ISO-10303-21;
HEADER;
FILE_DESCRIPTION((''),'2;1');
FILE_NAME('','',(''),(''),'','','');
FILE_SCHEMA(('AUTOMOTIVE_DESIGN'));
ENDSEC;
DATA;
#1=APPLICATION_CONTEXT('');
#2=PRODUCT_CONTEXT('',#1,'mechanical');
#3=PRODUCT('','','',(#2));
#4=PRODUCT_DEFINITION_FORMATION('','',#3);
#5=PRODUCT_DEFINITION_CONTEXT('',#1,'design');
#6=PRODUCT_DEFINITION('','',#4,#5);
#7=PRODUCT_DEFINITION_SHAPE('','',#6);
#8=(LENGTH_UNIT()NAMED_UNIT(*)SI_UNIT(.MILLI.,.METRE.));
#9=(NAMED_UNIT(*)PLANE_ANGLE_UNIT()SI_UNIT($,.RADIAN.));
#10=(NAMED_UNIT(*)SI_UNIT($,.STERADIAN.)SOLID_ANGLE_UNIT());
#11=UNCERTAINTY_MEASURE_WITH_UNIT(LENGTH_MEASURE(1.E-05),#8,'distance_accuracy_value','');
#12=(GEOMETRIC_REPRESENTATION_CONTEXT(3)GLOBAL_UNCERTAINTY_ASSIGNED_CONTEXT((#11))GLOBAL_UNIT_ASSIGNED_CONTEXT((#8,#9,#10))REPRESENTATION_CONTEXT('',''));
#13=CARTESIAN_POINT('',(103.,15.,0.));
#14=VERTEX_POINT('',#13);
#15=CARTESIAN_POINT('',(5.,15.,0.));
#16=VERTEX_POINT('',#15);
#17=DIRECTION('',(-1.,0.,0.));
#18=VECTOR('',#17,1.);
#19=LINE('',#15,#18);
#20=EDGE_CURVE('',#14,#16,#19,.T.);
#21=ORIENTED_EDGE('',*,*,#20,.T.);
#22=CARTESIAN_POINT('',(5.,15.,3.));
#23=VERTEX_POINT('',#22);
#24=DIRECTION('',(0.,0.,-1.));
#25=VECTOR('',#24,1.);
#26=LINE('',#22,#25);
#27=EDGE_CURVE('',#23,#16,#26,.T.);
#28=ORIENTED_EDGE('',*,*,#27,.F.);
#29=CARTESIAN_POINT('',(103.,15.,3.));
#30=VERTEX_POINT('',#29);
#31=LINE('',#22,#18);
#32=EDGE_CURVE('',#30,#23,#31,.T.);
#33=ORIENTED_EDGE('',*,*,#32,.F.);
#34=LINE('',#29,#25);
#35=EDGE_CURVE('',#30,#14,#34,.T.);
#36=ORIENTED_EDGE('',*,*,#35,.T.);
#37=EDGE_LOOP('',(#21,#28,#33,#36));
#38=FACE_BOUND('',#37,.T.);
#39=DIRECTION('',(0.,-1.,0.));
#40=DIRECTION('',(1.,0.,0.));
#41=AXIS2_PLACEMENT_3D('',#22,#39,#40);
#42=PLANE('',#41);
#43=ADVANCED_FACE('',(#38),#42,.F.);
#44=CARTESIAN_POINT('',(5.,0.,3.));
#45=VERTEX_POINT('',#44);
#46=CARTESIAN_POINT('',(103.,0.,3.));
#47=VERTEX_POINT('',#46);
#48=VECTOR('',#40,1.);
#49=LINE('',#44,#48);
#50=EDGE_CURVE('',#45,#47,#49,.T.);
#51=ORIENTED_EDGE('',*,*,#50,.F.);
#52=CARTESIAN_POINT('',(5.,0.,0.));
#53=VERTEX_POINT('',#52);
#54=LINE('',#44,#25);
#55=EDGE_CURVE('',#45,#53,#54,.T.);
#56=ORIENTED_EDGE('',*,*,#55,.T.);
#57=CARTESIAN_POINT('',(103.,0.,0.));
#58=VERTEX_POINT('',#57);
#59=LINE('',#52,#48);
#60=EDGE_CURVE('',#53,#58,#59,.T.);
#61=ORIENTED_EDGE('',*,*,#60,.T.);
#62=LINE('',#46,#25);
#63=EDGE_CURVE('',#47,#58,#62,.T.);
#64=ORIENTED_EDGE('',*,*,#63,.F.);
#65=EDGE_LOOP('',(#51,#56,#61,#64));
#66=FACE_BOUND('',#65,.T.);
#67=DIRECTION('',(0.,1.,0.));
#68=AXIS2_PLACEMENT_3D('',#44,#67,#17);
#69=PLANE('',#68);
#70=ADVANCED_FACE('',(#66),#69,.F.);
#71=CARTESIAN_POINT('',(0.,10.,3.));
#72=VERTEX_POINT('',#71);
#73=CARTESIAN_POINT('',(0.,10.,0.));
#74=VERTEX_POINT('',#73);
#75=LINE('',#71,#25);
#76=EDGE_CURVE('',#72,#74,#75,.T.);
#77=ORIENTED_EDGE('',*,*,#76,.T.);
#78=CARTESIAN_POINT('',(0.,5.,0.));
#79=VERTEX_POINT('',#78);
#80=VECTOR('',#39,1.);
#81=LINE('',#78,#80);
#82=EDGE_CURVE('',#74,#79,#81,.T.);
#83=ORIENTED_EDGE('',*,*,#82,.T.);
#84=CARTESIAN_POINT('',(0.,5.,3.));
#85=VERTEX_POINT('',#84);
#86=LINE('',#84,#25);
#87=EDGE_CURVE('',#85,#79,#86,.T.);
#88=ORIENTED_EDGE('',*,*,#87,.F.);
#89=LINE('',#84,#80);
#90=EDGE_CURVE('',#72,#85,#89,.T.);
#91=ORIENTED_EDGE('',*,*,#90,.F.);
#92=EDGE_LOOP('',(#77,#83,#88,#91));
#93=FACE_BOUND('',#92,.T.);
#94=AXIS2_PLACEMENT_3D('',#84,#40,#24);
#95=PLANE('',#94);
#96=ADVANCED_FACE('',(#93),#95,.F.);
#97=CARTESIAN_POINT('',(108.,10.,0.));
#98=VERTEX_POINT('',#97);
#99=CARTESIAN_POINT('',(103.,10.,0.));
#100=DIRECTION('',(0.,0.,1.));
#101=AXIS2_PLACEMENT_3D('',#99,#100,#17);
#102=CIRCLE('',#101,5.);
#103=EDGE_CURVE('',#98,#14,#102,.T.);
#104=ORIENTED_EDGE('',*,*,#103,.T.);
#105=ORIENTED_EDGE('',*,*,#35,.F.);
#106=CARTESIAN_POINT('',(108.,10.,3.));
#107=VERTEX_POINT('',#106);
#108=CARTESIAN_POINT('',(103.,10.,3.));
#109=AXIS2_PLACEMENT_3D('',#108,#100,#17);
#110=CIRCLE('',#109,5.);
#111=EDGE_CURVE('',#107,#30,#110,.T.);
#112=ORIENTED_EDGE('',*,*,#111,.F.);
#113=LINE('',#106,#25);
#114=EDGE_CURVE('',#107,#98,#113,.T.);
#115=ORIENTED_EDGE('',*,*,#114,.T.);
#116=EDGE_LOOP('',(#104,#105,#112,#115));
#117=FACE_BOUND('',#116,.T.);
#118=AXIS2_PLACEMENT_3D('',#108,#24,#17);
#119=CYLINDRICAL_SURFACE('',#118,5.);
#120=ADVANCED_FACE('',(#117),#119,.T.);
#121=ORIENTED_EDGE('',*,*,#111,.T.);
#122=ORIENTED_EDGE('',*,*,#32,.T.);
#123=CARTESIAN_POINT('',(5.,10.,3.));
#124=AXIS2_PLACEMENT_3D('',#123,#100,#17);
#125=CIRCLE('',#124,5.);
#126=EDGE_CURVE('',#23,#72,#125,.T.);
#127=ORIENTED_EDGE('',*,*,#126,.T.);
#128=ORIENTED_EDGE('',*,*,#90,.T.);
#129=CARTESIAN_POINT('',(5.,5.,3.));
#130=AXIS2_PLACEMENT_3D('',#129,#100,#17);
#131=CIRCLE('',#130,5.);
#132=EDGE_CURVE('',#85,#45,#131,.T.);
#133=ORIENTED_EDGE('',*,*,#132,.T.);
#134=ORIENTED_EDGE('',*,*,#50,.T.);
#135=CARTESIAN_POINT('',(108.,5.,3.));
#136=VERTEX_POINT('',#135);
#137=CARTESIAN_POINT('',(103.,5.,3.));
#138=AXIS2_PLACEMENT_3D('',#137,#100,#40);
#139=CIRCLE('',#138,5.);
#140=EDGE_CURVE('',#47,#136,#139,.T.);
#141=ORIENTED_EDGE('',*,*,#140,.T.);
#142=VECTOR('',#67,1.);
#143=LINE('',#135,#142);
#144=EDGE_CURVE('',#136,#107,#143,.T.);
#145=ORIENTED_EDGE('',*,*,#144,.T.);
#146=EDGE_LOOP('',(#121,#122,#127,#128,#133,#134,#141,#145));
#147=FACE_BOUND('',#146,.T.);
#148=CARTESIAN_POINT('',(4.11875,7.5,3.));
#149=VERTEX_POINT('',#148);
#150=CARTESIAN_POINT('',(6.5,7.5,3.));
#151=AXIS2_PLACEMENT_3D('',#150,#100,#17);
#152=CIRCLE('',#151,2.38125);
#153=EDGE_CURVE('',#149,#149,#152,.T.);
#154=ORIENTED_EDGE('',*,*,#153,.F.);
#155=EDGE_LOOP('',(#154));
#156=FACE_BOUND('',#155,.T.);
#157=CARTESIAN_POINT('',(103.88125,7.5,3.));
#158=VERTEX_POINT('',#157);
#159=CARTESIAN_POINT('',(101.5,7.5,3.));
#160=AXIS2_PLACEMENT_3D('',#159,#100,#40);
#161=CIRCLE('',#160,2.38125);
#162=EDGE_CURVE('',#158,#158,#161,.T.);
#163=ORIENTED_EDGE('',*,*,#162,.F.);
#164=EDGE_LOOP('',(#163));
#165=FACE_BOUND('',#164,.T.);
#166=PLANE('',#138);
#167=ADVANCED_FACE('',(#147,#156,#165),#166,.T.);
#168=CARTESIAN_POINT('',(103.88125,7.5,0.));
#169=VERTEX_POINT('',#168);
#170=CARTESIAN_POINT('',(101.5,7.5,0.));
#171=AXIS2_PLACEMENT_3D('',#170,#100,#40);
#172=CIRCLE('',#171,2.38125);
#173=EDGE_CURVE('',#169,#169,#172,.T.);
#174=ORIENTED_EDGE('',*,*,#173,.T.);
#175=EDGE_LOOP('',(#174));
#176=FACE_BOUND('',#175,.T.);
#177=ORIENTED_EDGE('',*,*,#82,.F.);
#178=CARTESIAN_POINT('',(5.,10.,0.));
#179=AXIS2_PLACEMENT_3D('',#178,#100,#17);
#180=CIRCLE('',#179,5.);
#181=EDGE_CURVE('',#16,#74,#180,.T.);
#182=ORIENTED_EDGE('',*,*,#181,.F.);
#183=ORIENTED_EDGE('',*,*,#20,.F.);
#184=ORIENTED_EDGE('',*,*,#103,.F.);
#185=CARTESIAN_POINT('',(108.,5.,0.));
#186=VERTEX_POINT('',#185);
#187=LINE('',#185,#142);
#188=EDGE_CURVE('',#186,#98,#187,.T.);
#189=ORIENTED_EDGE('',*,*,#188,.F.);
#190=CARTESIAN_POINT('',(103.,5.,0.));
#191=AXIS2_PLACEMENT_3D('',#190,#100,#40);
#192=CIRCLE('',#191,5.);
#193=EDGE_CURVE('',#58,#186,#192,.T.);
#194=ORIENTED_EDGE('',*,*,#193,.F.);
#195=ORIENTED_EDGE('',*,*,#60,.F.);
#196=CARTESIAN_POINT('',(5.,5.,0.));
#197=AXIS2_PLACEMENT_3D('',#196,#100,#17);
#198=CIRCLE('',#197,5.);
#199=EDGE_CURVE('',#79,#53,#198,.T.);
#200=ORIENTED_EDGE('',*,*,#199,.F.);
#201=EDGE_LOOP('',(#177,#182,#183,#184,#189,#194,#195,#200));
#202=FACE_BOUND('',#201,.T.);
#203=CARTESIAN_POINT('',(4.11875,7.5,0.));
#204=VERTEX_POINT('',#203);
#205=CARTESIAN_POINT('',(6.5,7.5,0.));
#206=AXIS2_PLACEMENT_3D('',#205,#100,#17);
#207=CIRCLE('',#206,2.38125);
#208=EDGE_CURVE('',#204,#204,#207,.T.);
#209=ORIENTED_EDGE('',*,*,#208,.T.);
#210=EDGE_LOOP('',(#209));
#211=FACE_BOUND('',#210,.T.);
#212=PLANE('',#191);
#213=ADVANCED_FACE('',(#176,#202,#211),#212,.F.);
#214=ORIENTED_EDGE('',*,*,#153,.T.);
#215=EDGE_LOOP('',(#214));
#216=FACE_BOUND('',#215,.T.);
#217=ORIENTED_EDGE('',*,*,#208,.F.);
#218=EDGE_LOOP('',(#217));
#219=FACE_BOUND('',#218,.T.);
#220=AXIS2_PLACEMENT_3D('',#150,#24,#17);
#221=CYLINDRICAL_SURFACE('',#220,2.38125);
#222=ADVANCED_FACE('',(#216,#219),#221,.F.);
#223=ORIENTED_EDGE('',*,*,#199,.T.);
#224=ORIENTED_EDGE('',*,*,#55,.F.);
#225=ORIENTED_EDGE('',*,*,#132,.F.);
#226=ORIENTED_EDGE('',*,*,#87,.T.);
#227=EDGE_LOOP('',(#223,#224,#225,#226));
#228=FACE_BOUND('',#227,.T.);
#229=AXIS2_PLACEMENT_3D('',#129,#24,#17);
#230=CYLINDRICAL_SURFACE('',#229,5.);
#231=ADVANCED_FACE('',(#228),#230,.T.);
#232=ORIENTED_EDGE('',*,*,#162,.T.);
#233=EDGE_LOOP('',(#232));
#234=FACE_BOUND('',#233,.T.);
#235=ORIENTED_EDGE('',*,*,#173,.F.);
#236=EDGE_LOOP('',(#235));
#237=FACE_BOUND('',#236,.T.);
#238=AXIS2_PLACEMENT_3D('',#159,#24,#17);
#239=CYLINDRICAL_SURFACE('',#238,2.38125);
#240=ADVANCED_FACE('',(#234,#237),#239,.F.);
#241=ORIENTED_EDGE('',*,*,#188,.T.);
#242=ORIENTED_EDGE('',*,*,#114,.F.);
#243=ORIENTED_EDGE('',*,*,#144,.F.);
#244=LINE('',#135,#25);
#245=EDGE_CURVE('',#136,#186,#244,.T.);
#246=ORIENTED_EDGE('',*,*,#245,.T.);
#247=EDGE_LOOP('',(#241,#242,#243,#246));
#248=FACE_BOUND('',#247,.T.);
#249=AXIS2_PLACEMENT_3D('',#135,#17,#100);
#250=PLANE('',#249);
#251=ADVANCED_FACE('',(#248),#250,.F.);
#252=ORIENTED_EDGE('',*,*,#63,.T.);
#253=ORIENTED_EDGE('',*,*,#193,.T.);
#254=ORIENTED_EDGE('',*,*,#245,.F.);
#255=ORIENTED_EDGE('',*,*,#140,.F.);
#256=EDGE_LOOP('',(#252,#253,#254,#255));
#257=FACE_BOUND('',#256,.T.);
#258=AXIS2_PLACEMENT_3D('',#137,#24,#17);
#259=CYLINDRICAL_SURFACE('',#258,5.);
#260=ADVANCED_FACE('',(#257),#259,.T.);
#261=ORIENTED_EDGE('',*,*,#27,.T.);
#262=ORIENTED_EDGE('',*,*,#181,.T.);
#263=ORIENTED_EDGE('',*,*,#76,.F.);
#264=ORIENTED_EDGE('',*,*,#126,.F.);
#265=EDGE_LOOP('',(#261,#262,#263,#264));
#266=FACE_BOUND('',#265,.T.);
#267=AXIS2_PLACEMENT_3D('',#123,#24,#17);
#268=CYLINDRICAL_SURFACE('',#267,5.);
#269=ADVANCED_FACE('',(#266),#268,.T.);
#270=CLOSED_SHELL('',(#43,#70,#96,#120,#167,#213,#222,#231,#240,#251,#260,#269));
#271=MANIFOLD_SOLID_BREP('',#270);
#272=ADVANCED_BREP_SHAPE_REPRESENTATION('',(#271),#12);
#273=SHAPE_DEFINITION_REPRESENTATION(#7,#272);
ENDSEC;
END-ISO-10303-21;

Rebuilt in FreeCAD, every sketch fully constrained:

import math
import FreeCAD as App
import Part
import Sketcher
Q = App.Units.Quantity

doc = App.newDocument("Part")
body = doc.addObject("PartDesign::Body", "Body")

# Sketch on XY plane
sketch1 = body.newObject("Sketcher::SketchObject", "Sketch")
sketch1.AttachmentSupport = (doc.getObject("XY_Plane"), [""])
sketch1.MapMode = "FlatFace"
sketch1.addGeometry(Part.LineSegment(App.Vector(5, 0, 0), App.Vector(103, 0, 0)), False)
sketch1.addGeometry(Part.ArcOfCircle(Part.Circle(App.Vector(103, 5, 0), App.Vector(0, 0, 1), 5), math.radians(-90), math.radians(0)), False)
sketch1.addGeometry(Part.LineSegment(App.Vector(108, 5, 0), App.Vector(108, 10, 0)), False)
sketch1.addGeometry(Part.ArcOfCircle(Part.Circle(App.Vector(103, 10, 0), App.Vector(0, 0, 1), 5), math.radians(0), math.radians(90)), False)
sketch1.addGeometry(Part.LineSegment(App.Vector(103, 15, 0), App.Vector(5, 15, 0)), False)
sketch1.addGeometry(Part.ArcOfCircle(Part.Circle(App.Vector(5, 10, 0), App.Vector(0, 0, 1), 5), math.radians(90), math.radians(180)), False)
sketch1.addGeometry(Part.LineSegment(App.Vector(0, 10, 0), App.Vector(0, 5, 0)), False)
sketch1.addGeometry(Part.ArcOfCircle(Part.Circle(App.Vector(5, 5, 0), App.Vector(0, 0, 1), 5), math.radians(180), math.radians(270)), False)
sketch1.addGeometry(Part.Circle(App.Vector(6.5, 7.5, 0), App.Vector(0, 0, 1), 2.4), False)
sketch1.addGeometry(Part.Circle(App.Vector(101.5, 7.5, 0), App.Vector(0, 0, 1), 2.4), False)
sketch1.addConstraint(Sketcher.Constraint("Tangent", 0, 2, 1, 1))
sketch1.addConstraint(Sketcher.Constraint("Tangent", 1, 2, 2, 1))
sketch1.addConstraint(Sketcher.Constraint("Tangent", 2, 2, 3, 1))
sketch1.addConstraint(Sketcher.Constraint("Tangent", 3, 2, 4, 1))
sketch1.addConstraint(Sketcher.Constraint("Tangent", 4, 2, 5, 1))
sketch1.addConstraint(Sketcher.Constraint("Tangent", 5, 2, 6, 1))
sketch1.addConstraint(Sketcher.Constraint("Tangent", 6, 2, 7, 1))
sketch1.addConstraint(Sketcher.Constraint("Tangent", 7, 2, 0, 1))
sketch1.addConstraint(Sketcher.Constraint("Horizontal", 0))
sketch1.addConstraint(Sketcher.Constraint("Vertical", 2))
sketch1.addConstraint(Sketcher.Constraint("Horizontal", 4))
sketch1.addConstraint(Sketcher.Constraint("Vertical", 6))
sketch1.addConstraint(Sketcher.Constraint("Equal", 1, 3))
sketch1.addConstraint(Sketcher.Constraint("Equal", 3, 5))
sketch1.addConstraint(Sketcher.Constraint("Equal", 5, 7))
sketch1.addConstraint(Sketcher.Constraint("Equal", 8, 9))
sketch1.addConstraint(Sketcher.Constraint("PointOnObject", 0, 2, -1))
sketch1.addConstraint(Sketcher.Constraint("PointOnObject", 5, 2, -2))
sketch1.addConstraint(Sketcher.Constraint("Horizontal", 8, 3, 9, 3))
sketch1.addConstraint(Sketcher.Constraint("Radius", 1, Q("5 mm")))
sketch1.addConstraint(Sketcher.Constraint("DistanceX", 0, 1, 0, 2, Q("98 mm")))
sketch1.addConstraint(Sketcher.Constraint("DistanceY", 2, 1, 2, 2, Q("5 mm")))
sketch1.addConstraint(Sketcher.Constraint("DistanceX", 8, 3, 9, 3, Q("95 mm")))
sketch1.addConstraint(Sketcher.Constraint("Diameter", 8, Q("4.7625 mm")))
sketch1.addConstraint(Sketcher.Constraint("DistanceX", -1, 1, 8, 3, Q("6.5 mm")))
sketch1.addConstraint(Sketcher.Constraint("DistanceY", -1, 1, 8, 3, Q("7.5 mm")))
pad1 = body.newObject("PartDesign::Pad", "Pad")
pad1.Profile = sketch1
pad1.Length = 3

doc.recompute()
